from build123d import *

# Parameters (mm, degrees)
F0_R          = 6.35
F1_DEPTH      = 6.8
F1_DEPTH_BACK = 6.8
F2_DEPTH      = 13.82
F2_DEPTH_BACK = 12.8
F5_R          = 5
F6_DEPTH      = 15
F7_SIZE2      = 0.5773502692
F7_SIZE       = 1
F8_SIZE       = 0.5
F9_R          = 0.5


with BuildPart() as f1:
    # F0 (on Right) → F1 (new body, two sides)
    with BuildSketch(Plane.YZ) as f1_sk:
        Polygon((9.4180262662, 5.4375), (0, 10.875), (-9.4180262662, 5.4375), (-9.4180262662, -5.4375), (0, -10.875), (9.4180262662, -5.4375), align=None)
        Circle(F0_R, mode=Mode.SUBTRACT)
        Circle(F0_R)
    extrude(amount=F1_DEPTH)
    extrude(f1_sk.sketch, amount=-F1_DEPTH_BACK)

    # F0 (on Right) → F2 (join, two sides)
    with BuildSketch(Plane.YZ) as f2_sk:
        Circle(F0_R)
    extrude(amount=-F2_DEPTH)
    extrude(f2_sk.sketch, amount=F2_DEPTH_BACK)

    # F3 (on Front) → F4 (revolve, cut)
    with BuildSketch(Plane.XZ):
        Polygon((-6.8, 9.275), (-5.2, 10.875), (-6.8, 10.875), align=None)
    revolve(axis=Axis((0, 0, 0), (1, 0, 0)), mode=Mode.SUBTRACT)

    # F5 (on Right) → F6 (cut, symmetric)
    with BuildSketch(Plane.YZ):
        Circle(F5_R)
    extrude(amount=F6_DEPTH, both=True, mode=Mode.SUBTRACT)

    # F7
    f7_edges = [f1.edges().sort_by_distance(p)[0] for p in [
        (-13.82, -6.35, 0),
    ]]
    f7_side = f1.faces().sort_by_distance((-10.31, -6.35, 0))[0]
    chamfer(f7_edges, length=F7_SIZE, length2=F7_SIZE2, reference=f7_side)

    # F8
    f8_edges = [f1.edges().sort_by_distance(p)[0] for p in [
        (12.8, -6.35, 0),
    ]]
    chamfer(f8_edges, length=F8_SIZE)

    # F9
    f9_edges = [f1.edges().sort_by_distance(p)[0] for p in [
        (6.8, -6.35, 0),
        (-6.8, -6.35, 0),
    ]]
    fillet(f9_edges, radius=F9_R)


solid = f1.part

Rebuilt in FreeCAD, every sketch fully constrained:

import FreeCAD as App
import Part
import Sketcher

V = App.Vector
Q = App.Units.Quantity


def edges_at(feature, points):
    """Names of the edges that pass closest to the given points."""
    edges = feature.Shape.Edges
    near = lambda p: min(range(len(edges)), key=lambda i: edges[i].distToShape(Part.Vertex(*p))[0])
    return sorted({f"Edge{near(p) + 1}" for p in points})


def add_polygon(sketch, points):
    """Adds a closed chain of lines whose ends are joined by coincident constraints."""
    first, n = sketch.GeometryCount, len(points)
    for a, b in zip(points, points[1:] + points[:1]):
        sketch.addGeometry(Part.LineSegment(App.Vector(*a, 0), App.Vector(*b, 0)), False)
    for i in range(n):
        sketch.addConstraint(Sketcher.Constraint("Coincident", first + i, 2, first + (i + 1) % n, 1))

doc = App.newDocument("Part")
body = doc.addObject("PartDesign::Body", "Body")

# Sketch on YZ plane
sketch1 = body.newObject("Sketcher::SketchObject", "Sketch")
sketch1.AttachmentSupport = (doc.getObject("YZ_Plane"), [""])
sketch1.MapMode = "FlatFace"
add_polygon(sketch1, [(9.418026, 5.4375), (0, 10.875), (-9.418026, 5.4375), (-9.418026, -5.4375), (0, -10.875), (9.418026, -5.4375)])  # lines 0-5
sketch1.addConstraint(Sketcher.Constraint("Vertical", 2))
sketch1.addConstraint(Sketcher.Constraint("Vertical", 5))
sketch1.addConstraint(Sketcher.Constraint("Symmetric", 0, 2, 3, 2, -1, 1))
sketch1.addConstraint(Sketcher.Constraint("Symmetric", 1, 2, 4, 2, -1, 1))
sketch1.addConstraint(Sketcher.Constraint("PointOnObject", 0, 2, -2))
sketch1.addConstraint(Sketcher.Constraint("Parallel", 0, 3))
sketch1.addConstraint(Sketcher.Constraint("Horizontal", 2, 2, 4, 2))
sketch1.addConstraint(Sketcher.Constraint("Angle", 0, Q("150 deg")))
sketch1.addConstraint(Sketcher.Constraint("DistanceY", 2, 2, 2, 1, Q("10.875 mm")))
sketch1.addConstraint(Sketcher.Constraint("DistanceY", 3, 2, 0, 2, Q("21.75 mm")))
pad1 = body.newObject("PartDesign::Pad", "Pad")
pad1.Profile = sketch1
pad1.Type = "TwoLengths"
pad1.Length = 6.8
pad1.Length2 = 6.8

# Sketch on YZ plane
sketch2 = body.newObject("Sketcher::SketchObject", "Sketch001")
sketch2.AttachmentSupport = (doc.getObject("YZ_Plane"), [""])
sketch2.MapMode = "FlatFace"
sketch2.addGeometry(Part.Circle(V(0, 0, 0), V(0, 0, 1), 6.35), False)
sketch2.addConstraint(Sketcher.Constraint("Coincident", 0, 3, -1, 1))
sketch2.addConstraint(Sketcher.Constraint("Diameter", 0, Q("12.7 mm")))
pad2 = body.newObject("PartDesign::Pad", "Pad001")
pad2.Profile = sketch2
pad2.Type = "TwoLengths"
pad2.Length = 13.82
pad2.Length2 = 12.8
pad2.Reversed = True

# Sketch on XZ plane
sketch3 = body.newObject("Sketcher::SketchObject", "Sketch002")
sketch3.AttachmentSupport = (doc.getObject("XZ_Plane"), [""])
sketch3.MapMode = "FlatFace"
add_polygon(sketch3, [(-6.8, 9.275), (-5.2, 10.875), (-6.8, 10.875)])  # lines 0-2
sketch3.addConstraint(Sketcher.Constraint("Horizontal", 1))
sketch3.addConstraint(Sketcher.Constraint("Vertical", 2))
sketch3.addConstraint(Sketcher.Constraint("Equal", 1, 2))
sketch3.addConstraint(Sketcher.Constraint("DistanceX", 1, 2, 1, 1, Q("1.6 mm")))
sketch3.addConstraint(Sketcher.Constraint("DistanceX", 0, 2, -1, 1, Q("5.2 mm")))
sketch3.addConstraint(Sketcher.Constraint("DistanceY", -1, 1, 0, 2, Q("10.875 mm")))
groove = body.newObject("PartDesign::Groove", "Groove")
groove.Profile = sketch3
groove.ReferenceAxis = (sketch3, ["H_Axis"])
groove.Angle = 360

# Sketch on YZ plane
sketch4 = body.newObject("Sketcher::SketchObject", "Sketch003")
sketch4.AttachmentSupport = (doc.getObject("YZ_Plane"), [""])
sketch4.MapMode = "FlatFace"
sketch4.addGeometry(Part.Circle(V(0, 0, 0), V(0, 0, 1), 5), False)
sketch4.addConstraint(Sketcher.Constraint("Coincident", 0, 3, -1, 1))
sketch4.addConstraint(Sketcher.Constraint("Diameter", 0, Q("10 mm")))
pocket1 = body.newObject("PartDesign::Pocket", "Pocket")
pocket1.Profile = sketch4
pocket1.Length = 30
pocket1.Midplane = True
doc.recompute()

chamfer = body.newObject("PartDesign::Chamfer", "Chamfer")
chamfer.Base = (pocket1, edges_at(pocket1, [(-13.82, -6.35, 0)]))
chamfer.ChamferType = "Two distances"
chamfer.Size = 1
chamfer.Size2 = 0.57735
doc.recompute()

chamfer2 = body.newObject("PartDesign::Chamfer", "Chamfer001")
chamfer2.Base = (chamfer, edges_at(chamfer, [(12.8, -6.35, 0)]))
chamfer2.Size = 0.5
doc.recompute()

fillet = body.newObject("PartDesign::Fillet", "Fillet")
fillet.Base = (chamfer2, edges_at(chamfer2, [(6.8, -6.35, 0), (-6.8, -6.35, 0)]))
fillet.Radius = 0.5

doc.recompute()
